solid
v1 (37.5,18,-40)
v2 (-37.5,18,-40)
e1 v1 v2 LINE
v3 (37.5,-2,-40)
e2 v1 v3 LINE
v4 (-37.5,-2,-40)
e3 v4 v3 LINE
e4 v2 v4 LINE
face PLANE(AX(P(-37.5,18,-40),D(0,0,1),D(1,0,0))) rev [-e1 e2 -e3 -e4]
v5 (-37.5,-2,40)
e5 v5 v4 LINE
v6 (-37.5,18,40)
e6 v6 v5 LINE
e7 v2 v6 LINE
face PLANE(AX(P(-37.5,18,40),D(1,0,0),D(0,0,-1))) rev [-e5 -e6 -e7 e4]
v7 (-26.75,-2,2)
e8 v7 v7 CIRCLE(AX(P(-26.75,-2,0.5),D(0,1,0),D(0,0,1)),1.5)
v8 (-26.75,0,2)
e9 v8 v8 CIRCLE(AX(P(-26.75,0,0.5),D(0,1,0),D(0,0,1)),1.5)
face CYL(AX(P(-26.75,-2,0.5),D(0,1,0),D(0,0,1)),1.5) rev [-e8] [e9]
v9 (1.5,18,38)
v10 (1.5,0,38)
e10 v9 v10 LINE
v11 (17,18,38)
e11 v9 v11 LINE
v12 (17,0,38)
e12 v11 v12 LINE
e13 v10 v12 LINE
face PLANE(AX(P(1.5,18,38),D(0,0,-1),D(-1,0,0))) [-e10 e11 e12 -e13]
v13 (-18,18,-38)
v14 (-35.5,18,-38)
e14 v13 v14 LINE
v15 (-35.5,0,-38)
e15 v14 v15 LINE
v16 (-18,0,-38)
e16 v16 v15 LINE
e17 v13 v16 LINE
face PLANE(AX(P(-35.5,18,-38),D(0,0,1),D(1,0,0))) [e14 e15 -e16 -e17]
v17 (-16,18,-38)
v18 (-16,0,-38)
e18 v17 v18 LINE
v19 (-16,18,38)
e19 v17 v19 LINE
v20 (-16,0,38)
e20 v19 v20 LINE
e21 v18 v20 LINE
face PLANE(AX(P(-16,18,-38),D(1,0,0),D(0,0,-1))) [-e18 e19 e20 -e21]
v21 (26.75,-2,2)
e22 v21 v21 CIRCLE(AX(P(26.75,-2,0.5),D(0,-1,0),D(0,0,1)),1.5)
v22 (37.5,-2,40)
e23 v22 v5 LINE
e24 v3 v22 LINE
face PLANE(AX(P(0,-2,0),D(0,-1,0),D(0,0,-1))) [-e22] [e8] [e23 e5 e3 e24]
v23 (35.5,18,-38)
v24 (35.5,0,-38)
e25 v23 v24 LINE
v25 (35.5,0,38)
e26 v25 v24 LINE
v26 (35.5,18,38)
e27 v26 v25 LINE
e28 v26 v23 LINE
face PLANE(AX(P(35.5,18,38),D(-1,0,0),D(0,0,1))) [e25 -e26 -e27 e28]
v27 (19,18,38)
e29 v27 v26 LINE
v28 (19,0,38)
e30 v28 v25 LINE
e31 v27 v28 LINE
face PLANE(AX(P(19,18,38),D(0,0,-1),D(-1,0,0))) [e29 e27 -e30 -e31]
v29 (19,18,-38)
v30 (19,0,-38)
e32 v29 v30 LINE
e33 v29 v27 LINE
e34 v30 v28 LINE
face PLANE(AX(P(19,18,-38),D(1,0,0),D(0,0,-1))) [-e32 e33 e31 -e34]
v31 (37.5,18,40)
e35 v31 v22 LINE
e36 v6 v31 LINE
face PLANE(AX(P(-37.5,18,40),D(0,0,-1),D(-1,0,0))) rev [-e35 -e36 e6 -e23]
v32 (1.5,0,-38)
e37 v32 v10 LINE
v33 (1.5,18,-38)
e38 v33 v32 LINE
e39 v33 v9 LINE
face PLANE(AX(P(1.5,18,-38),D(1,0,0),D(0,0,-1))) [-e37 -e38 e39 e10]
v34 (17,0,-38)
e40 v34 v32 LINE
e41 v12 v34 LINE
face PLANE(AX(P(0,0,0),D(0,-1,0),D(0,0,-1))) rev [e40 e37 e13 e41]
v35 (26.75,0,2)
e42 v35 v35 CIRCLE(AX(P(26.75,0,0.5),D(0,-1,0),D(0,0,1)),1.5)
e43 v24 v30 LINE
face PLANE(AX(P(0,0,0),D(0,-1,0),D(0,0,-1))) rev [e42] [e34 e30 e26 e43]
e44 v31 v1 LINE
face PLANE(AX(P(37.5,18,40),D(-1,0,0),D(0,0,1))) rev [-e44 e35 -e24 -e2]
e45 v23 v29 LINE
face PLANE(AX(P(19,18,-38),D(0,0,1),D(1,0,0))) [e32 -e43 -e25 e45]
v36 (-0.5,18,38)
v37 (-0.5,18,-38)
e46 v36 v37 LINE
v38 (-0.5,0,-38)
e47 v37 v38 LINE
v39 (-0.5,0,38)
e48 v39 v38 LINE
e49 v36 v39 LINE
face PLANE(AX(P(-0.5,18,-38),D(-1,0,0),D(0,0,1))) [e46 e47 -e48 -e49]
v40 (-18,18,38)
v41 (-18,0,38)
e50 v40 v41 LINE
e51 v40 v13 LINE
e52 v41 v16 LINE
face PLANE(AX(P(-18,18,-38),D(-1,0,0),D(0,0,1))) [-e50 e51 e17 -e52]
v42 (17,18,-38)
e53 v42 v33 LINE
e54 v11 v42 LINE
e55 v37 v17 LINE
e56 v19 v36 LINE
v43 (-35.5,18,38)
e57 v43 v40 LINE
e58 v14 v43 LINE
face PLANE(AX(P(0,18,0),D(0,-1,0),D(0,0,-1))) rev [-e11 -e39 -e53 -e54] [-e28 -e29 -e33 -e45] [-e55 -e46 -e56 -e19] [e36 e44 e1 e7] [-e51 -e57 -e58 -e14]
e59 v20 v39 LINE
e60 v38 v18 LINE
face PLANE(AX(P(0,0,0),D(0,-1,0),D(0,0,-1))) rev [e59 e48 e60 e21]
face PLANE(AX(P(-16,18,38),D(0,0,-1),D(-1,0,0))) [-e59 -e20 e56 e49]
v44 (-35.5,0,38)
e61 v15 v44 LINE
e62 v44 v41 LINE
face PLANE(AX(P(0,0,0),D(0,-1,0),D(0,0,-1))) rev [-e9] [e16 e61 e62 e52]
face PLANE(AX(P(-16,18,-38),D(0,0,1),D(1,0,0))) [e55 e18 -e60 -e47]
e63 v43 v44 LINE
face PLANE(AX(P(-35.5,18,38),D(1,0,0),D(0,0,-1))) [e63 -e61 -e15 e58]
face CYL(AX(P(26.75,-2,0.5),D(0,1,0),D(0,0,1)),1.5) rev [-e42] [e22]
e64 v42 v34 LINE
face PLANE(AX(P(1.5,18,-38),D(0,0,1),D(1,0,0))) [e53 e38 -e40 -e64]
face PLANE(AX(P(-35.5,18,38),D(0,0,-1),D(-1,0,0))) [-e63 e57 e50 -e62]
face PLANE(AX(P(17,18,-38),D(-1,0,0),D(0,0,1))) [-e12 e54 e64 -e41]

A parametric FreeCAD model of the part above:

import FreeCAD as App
import Part
import Sketcher

V = App.Vector
Q = App.Units.Quantity


def add_polygon(sketch, points):
    """Adds a closed chain of lines whose ends are joined by coincident constraints."""
    first, n = sketch.GeometryCount, len(points)
    for a, b in zip(points, points[1:] + points[:1]):
        sketch.addGeometry(Part.LineSegment(App.Vector(*a, 0), App.Vector(*b, 0)), False)
    for i in range(n):
        sketch.addConstraint(Sketcher.Constraint("Coincident", first + i, 2, first + (i + 1) % n, 1))

doc = App.newDocument("Part")
params = doc.addObject("Spreadsheet::Sheet", "Params")
for row, (alias, value) in enumerate([
    ("sketch1_width", "75 mm"),
    ("sketch1_height", "80 mm"),
    ("sketch1_height2", "76 mm"),
    ("sketch1_width2", "17.5 mm"),
    ("sketch1_width3", "15.5 mm"),
    ("pad1_length", "18 mm"),
    ("sketch2_width", "75 mm"),
    ("sketch2_height", "80 mm"),
    ("pad2_length", "2 mm"),
    ("sketch3_diameter", "3 mm"),
], start=1):
    params.set(f"A{row}", alias)
    params.set(f"B{row}", "=" + value)
    params.setAlias(f"B{row}", alias)

body = doc.addObject("PartDesign::Body", "Body")

sketch1 = body.newObject("Sketcher::SketchObject", "Sketch")
sketch1.AttachmentSupport = (doc.getObject("XZ_Plane"), [""])
sketch1.MapMode = "FlatFace"
add_polygon(sketch1, [(-38, -40), (-38, 40), (38, 40), (38, -40)])
add_polygon(sketch1, [(-18, 38), (-36, 38), (-36, -38), (-18, -38)])
add_polygon(sketch1, [(0, 38), (-16, 38), (-16, -38), (0, -38)])
add_polygon(sketch1, [(17, 38), (2, 38), (2, -38), (17, -38)])
add_polygon(sketch1, [(36, 38), (19, 38), (19, -38), (36, -38)])
sketch1.addConstraint([
    Sketcher.Constraint("Vertical", 0),
    Sketcher.Constraint("Horizontal", 1),
    Sketcher.Constraint("Vertical", 2),
    Sketcher.Constraint("Horizontal", 3),
    Sketcher.Constraint("Horizontal", 4),
    Sketcher.Constraint("Vertical", 5),
    Sketcher.Constraint("Horizontal", 6),
    Sketcher.Constraint("Vertical", 7),
    Sketcher.Constraint("Horizontal", 8),
    Sketcher.Constraint("Vertical", 9),
    Sketcher.Constraint("Horizontal", 10),
    Sketcher.Constraint("Vertical", 11),
    Sketcher.Constraint("Horizontal", 12),
    Sketcher.Constraint("Vertical", 13),
    Sketcher.Constraint("Horizontal", 14),
    Sketcher.Constraint("Vertical", 15),
    Sketcher.Constraint("Horizontal", 16),
    Sketcher.Constraint("Vertical", 17),
    Sketcher.Constraint("Horizontal", 18),
    Sketcher.Constraint("Vertical", 19),
    Sketcher.Constraint("Symmetric", 0, 2, 2, 2, -1, 1),
    Sketcher.Constraint("Symmetric", 4, 2, 18, 2, -1, 1),
    Sketcher.Constraint("Horizontal", 7, 2, 8, 2),
    Sketcher.Constraint("Horizontal", 6, 2, 9, 2),
    Sketcher.Constraint("Horizontal", 11, 2, 12, 2),
    Sketcher.Constraint("Horizontal", 10, 2, 13, 2),
    Sketcher.Constraint("Horizontal", 15, 2, 16, 2),
    Sketcher.Constraint("Horizontal", 14, 2, 17, 2),
    Sketcher.Constraint("Equal", 10, 12),
    Sketcher.Constraint("DistanceX", 1, 1, 1, 2, Q("75 mm")),
    Sketcher.Constraint("DistanceY", 0, 1, 0, 2, Q("80 mm")),
    Sketcher.Constraint("DistanceY", 5, 2, 5, 1, Q("76 mm")),
    Sketcher.Constraint("DistanceX", 4, 2, 4, 1, Q("17.5 mm")),
    Sketcher.Constraint("DistanceX", 8, 2, 8, 1, Q("15.5 mm")),
    Sketcher.Constraint("DistanceX", 16, 2, 16, 1, Q("16.5 mm")),
    Sketcher.Constraint("DistanceX", 6, 2, -1, 1, Q("18 mm")),
    Sketcher.Constraint("DistanceX", 8, 2, -1, 1, Q("16 mm")),
    Sketcher.Constraint("DistanceX", -1, 1, 14, 2, Q("17 mm")),
])
sketch1.setExpression("Constraints[49]", "Params.sketch1_width")
sketch1.setExpression("Constraints[50]", "Params.sketch1_height")
sketch1.setExpression("Constraints[51]", "Params.sketch1_height2")
sketch1.setExpression("Constraints[52]", "Params.sketch1_width2")
sketch1.setExpression("Constraints[53]", "Params.sketch1_width3")
pad1 = body.newObject("PartDesign::Pad", "Pad")
pad1.Profile = sketch1
pad1.setExpression("Length", "Params.pad1_length")
pad1.Reversed = True

sketch2 = body.newObject("Sketcher::SketchObject", "Sketch001")
sketch2.AttachmentSupport = (doc.getObject("XZ_Plane"), [""])
sketch2.MapMode = "FlatFace"
add_polygon(sketch2, [(-38, 40), (-38, -40), (38, -40), (38, 40)])
sketch2.addConstraint([
    Sketcher.Constraint("Vertical", 0),
    Sketcher.Constraint("Horizontal", 1),
    Sketcher.Constraint("Vertical", 2),
    Sketcher.Constraint("Horizontal", 3),
    Sketcher.Constraint("Symmetric", 0, 2, 2, 2, -1, 1),
    Sketcher.Constraint("DistanceX", 1, 1, 1, 2, Q("75 mm")),
    Sketcher.Constraint("DistanceY", 0, 2, 0, 1, Q("80 mm")),
])
sketch2.setExpression("Constraints[9]", "Params.sketch2_width")
sketch2.setExpression("Constraints[10]", "Params.sketch2_height")
pad2 = body.newObject("PartDesign::Pad", "Pad001")
pad2.Profile = sketch2
pad2.setExpression("Length", "Params.pad2_length")

sketch3 = body.newObject("Sketcher::SketchObject", "Sketch002")
sketch3.AttachmentSupport = (doc.getObject("XZ_Plane"), [""])
sketch3.MapMode = "FlatFace"
sketch3.addGeometry(Part.Circle(V(-26.8, 0.5, 0), V(0, 0, 1), 1.5), False)
sketch3.addConstraint([
    Sketcher.Constraint("Diameter", 0, Q("3 mm")),
    Sketcher.Constraint("DistanceY", -1, 1, 0, 3, Q("0.5 mm")),
    Sketcher.Constraint("DistanceX", 0, 3, -1, 1, Q("26.75 mm")),
])
sketch3.setExpression("Constraints[0]", "Params.sketch3_diameter")
pocket1 = body.newObject("PartDesign::Pocket", "Pocket")
pocket1.Profile = sketch3
pocket1.Type = "ThroughAll"
pocket1.Reversed = True
doc.recompute()

mirrored = body.newObject("PartDesign::Mirrored", "Mirrored")
mirrored.Originals = [pocket1]
mirrored.MirrorPlane = (doc.getObject("YZ_Plane"), [""])
body.Tip = mirrored

doc.recompute()
